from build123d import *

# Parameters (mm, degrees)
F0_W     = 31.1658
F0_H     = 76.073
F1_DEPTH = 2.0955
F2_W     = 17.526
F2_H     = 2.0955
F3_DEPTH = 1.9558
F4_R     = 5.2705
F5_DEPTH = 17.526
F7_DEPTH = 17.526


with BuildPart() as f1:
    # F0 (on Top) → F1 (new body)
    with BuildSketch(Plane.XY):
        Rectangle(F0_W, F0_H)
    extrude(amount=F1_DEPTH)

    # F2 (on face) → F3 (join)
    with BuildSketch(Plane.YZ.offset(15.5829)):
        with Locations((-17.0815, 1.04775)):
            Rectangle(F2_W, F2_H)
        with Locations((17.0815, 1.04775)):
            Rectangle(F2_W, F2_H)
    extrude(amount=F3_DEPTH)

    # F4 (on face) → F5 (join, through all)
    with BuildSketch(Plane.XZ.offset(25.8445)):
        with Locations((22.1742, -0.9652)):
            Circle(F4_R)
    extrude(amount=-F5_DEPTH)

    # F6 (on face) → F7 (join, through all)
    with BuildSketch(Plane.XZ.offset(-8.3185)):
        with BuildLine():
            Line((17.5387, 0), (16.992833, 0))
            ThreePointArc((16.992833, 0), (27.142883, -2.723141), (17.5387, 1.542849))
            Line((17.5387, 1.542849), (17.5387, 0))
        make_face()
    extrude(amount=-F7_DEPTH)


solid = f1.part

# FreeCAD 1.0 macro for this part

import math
import FreeCAD as App
import Part
import Sketcher
from FreeCAD import Vector
Q = App.Units.Quantity


def add_polygon(sketch, points):
    """Adds a closed chain of lines whose ends are joined by coincident constraints."""
    first, n = sketch.GeometryCount, len(points)
    for a, b in zip(points, points[1:] + points[:1]):
        sketch.addGeometry(Part.LineSegment(App.Vector(*a, 0), App.Vector(*b, 0)), False)
    for i in range(n):
        sketch.addConstraint(Sketcher.Constraint("Coincident", first + i, 2, first + (i + 1) % n, 1))

doc = App.newDocument("Part")
body = doc.addObject("PartDesign::Body", "Body")

# Sketch on XY plane
sketch1 = body.newObject("Sketcher::SketchObject", "Sketch")
sketch1.AttachmentSupport = (doc.getObject("XY_Plane"), [""])
sketch1.MapMode = "FlatFace"
add_polygon(sketch1, [(-16, 38), (-16, -38), (16, -38), (16, 38)])  # lines 0-3
sketch1.addConstraint(Sketcher.Constraint("Vertical", 0))
sketch1.addConstraint(Sketcher.Constraint("Horizontal", 1))
sketch1.addConstraint(Sketcher.Constraint("Vertical", 2))
sketch1.addConstraint(Sketcher.Constraint("Horizontal", 3))
sketch1.addConstraint(Sketcher.Constraint("Symmetric", 0, 2, 2, 2, -1, 1))
sketch1.addConstraint(Sketcher.Constraint("DistanceX", 1, 1, 1, 2, Q("1.227 in")))
sketch1.addConstraint(Sketcher.Constraint("DistanceY", 0, 2, 0, 1, Q("2.995 in")))
pad1 = body.newObject("PartDesign::Pad", "Pad")
pad1.Profile = sketch1
pad1.Length = Q("0.0825 in")

# Sketch on YZ plane
sketch2 = body.newObject("Sketcher::SketchObject", "Sketch001")
sketch2.AttachmentSupport = (doc.getObject("YZ_Plane"), [""])
sketch2.MapMode = "FlatFace"
sketch2.AttachmentOffset = App.Placement(Vector(0, 0, 0.6135 * 25.4), App.Rotation())
add_polygon(sketch2, [(-25.8, 2.1), (-25.8, 0), (-8.3, 0), (-8.3, 2.1)])  # lines 0-3
add_polygon(sketch2, [(8.3, 2.1), (8.3, 0), (25.8, 0), (25.8, 2.1)])  # lines 4-7
sketch2.addConstraint(Sketcher.Constraint("Vertical", 0))
sketch2.addConstraint(Sketcher.Constraint("Horizontal", 1))
sketch2.addConstraint(Sketcher.Constraint("Vertical", 2))
sketch2.addConstraint(Sketcher.Constraint("Horizontal", 3))
sketch2.addConstraint(Sketcher.Constraint("Vertical", 4))
sketch2.addConstraint(Sketcher.Constraint("Horizontal", 5))
sketch2.addConstraint(Sketcher.Constraint("Vertical", 6))
sketch2.addConstraint(Sketcher.Constraint("Horizontal", 7))
sketch2.addConstraint(Sketcher.Constraint("Symmetric", 1, 2, 4, 2, -1, 1))
sketch2.addConstraint(Sketcher.Constraint("Symmetric", 0, 2, 5, 2, -2))
sketch2.addConstraint(Sketcher.Constraint("Horizontal", 3, 2, 6, 2))
sketch2.addConstraint(Sketcher.Constraint("DistanceX", 1, 1, 1, 2, Q("0.69 in")))
sketch2.addConstraint(Sketcher.Constraint("DistanceY", 0, 2, 0, 1, Q("0.0825 in")))
sketch2.addConstraint(Sketcher.Constraint("DistanceX", 1, 2, 4, 2, Q("0.655 in")))
pad2 = body.newObject("PartDesign::Pad", "Pad001")
pad2.Profile = sketch2
pad2.Length = Q("0.077 in")

# Sketch on XZ plane
sketch3 = body.newObject("Sketcher::SketchObject", "Sketch002")
sketch3.AttachmentSupport = (doc.getObject("XZ_Plane"), [""])
sketch3.MapMode = "FlatFace"
sketch3.AttachmentOffset = App.Placement(Vector(0, 0, 1.0175 * 25.4), App.Rotation())
sketch3.addGeometry(Part.Circle(Vector(22, -1, 0), Vector(0, 0, 1), 5), False)
sketch3.addConstraint(Sketcher.Constraint("Diameter", 0, Q("0.415 in")))
sketch3.addConstraint(Sketcher.Constraint("DistanceX", -1, 1, 0, 3, Q("0.873 in")))
sketch3.addConstraint(Sketcher.Constraint("DistanceY", 0, 3, -1, 1, Q("0.038 in")))
pad3 = body.newObject("PartDesign::Pad", "Pad002")
pad3.Profile = sketch3
pad3.Length = Q("0.69 in")
pad3.Reversed = True

# Sketch on XZ plane
sketch4 = body.newObject("Sketcher::SketchObject", "Sketch003")
sketch4.AttachmentSupport = (doc.getObject("XZ_Plane"), [""])
sketch4.MapMode = "FlatFace"
sketch4.AttachmentOffset = App.Placement(Vector(0, 0, -0.3275 * 25.4), App.Rotation())
sketch4.addGeometry(Part.LineSegment(Vector(17.5, 0, 0), Vector(17, 0, 0)), False)
sketch4.addGeometry(Part.ArcOfCircle(Part.Circle(Vector(22.2, -1, 0), Vector(0, 0, 1), 5.3), math.radians(169), math.radians(512)), False)
sketch4.addGeometry(Part.LineSegment(Vector(17.5, 1.5, 0), Vector(17.5, 0, 0)), False)
sketch4.addConstraint(Sketcher.Constraint("Coincident", 0, 2, 1, 1))
sketch4.addConstraint(Sketcher.Constraint("Coincident", 1, 2, 2, 1))
sketch4.addConstraint(Sketcher.Constraint("Coincident", 2, 2, 0, 1))
sketch4.addConstraint(Sketcher.Constraint("Horizontal", 0))
sketch4.addConstraint(Sketcher.Constraint("Vertical", 2))
sketch4.addConstraint(Sketcher.Constraint("PointOnObject", 0, 2, -1))
sketch4.addConstraint(Sketcher.Constraint("Radius", 1, Q("0.2075 in")))
sketch4.addConstraint(Sketcher.Constraint("DistanceX", -1, 1, 1, 3, Q("0.873 in")))
sketch4.addConstraint(Sketcher.Constraint("DistanceY", 1, 3, -1, 1, Q("0.0380001 in")))
sketch4.addConstraint(Sketcher.Constraint("DistanceX", -1, 1, 1, 2, Q("0.6905 in")))
pad4 = body.newObject("PartDesign::Pad", "Pad003")
pad4.Profile = sketch4
pad4.Length = Q("0.69 in")
pad4.Reversed = True

doc.recompute()
